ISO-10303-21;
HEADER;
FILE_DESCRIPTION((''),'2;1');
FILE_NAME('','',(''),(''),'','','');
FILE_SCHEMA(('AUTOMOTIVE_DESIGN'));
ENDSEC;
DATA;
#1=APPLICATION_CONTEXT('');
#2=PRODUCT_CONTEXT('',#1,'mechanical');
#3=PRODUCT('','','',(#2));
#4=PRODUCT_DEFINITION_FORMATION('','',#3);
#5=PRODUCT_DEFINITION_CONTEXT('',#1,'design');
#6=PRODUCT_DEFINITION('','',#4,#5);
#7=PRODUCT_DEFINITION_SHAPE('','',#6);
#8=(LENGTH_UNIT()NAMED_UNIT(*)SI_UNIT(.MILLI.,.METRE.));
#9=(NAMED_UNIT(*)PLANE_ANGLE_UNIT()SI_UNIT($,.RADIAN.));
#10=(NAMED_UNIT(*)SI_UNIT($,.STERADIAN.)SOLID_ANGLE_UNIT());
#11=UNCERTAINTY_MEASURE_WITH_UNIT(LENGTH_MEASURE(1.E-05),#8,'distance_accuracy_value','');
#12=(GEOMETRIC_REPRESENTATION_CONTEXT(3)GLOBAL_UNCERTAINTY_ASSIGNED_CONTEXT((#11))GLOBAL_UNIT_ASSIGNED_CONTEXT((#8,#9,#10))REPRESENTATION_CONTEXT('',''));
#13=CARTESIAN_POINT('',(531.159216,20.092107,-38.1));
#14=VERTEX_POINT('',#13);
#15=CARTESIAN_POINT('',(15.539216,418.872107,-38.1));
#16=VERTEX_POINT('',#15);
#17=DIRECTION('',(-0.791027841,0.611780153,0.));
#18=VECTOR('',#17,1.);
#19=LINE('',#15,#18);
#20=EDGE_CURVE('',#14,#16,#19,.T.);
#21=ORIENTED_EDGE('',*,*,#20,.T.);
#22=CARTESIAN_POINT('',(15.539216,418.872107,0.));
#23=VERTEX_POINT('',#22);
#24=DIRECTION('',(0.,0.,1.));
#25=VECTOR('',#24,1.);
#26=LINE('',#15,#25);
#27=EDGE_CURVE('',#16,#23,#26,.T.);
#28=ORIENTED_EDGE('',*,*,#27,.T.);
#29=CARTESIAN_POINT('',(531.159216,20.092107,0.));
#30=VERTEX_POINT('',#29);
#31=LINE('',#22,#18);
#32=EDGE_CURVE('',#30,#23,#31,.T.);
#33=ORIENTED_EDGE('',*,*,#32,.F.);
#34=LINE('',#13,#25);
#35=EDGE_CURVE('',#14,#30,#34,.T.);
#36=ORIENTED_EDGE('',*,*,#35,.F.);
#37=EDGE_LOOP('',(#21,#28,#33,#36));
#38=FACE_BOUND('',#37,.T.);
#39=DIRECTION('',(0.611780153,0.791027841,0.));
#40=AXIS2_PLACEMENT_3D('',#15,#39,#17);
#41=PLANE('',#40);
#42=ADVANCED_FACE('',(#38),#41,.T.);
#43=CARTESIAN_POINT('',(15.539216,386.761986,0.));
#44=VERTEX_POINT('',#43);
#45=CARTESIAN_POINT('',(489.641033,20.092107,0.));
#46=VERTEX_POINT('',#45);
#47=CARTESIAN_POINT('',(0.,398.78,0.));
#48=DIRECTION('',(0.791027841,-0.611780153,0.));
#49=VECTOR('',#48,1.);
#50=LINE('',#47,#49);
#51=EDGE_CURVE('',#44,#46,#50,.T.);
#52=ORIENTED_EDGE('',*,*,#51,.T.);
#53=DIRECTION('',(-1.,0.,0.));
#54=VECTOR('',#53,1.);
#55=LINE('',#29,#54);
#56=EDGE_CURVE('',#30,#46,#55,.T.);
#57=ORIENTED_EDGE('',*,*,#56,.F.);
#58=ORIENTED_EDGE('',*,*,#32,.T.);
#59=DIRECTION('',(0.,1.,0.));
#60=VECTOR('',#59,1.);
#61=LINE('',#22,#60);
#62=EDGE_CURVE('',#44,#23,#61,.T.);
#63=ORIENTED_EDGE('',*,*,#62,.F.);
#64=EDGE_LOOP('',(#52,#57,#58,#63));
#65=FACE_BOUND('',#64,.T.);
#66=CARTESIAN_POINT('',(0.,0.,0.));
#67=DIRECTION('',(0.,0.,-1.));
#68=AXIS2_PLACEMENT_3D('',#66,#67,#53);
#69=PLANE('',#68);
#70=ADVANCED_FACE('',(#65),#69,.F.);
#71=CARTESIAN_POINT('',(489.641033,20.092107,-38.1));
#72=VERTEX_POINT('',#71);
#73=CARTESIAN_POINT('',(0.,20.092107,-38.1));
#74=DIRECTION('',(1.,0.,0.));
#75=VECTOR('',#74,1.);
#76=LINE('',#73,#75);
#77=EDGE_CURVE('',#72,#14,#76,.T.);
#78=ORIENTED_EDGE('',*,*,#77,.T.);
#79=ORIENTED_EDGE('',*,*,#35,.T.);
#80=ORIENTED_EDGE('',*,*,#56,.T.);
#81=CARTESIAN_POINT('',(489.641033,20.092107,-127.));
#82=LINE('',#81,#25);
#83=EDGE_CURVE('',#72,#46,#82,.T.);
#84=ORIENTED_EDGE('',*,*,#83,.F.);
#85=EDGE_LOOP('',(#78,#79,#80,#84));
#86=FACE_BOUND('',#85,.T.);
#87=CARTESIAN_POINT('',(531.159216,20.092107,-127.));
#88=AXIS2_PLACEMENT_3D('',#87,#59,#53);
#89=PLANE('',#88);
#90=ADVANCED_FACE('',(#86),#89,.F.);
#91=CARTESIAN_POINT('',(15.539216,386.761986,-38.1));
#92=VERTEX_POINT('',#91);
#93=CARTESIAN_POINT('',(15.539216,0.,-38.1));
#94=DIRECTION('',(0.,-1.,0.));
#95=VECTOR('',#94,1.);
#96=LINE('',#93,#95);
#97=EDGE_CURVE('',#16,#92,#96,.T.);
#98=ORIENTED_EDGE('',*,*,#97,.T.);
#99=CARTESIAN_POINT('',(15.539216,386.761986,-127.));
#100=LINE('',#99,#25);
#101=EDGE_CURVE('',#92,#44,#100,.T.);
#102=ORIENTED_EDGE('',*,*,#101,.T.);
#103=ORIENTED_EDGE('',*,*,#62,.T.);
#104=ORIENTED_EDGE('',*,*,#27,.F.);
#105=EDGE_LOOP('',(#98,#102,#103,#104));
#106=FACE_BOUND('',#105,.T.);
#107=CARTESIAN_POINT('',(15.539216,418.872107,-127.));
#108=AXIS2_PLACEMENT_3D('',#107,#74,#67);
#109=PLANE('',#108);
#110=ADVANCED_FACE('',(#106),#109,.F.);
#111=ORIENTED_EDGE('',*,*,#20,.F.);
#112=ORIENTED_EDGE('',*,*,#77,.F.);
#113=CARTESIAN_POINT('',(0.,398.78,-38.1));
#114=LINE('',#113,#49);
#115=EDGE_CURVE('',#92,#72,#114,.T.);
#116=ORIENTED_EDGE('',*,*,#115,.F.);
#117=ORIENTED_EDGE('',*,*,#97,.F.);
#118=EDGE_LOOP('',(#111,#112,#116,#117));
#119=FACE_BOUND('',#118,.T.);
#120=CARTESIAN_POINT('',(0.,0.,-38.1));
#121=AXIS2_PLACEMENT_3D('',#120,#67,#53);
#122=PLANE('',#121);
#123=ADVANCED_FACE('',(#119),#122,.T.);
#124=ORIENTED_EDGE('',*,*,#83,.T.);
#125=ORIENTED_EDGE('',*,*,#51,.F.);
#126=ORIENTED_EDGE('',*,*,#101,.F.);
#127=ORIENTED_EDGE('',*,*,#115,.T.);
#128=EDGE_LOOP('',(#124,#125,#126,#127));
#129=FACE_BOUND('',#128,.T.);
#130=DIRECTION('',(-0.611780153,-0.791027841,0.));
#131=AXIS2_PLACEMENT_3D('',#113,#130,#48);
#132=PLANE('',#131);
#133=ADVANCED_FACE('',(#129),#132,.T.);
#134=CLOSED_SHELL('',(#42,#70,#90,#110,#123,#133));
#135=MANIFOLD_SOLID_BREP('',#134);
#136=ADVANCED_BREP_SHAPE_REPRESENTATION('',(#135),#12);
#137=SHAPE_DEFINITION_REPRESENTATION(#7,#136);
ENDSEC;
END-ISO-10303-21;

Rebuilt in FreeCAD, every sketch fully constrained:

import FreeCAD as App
import Part
import Sketcher

V = App.Vector
Q = App.Units.Quantity

doc = App.newDocument("Part")
body = doc.addObject("PartDesign::Body", "Body")

# Sketch on XY plane
sketch1 = body.newObject("Sketcher::SketchObject", "Sketch")
sketch1.AttachmentSupport = (doc.getObject("XY_Plane"), [""])
sketch1.MapMode = "FlatFace"
sketch1.addGeometry([
    Part.LineSegment(V(0, 398.78, 0), V(515.62, 0, 0)),
    Part.LineSegment(V(515.62, 0, 0), V(531.159216, 20.092107, 0)),
    Part.LineSegment(V(531.159216, 20.092107, 0), V(15.539216, 418.872107, 0)),
    Part.LineSegment(V(15.539216, 418.872107, 0), V(0, 398.78, 0)),
], False)
sketch1.addConstraint([
    Sketcher.Constraint("Coincident", 0, 2, 1, 1),
    Sketcher.Constraint("Coincident", 1, 2, 2, 1),
    Sketcher.Constraint("Coincident", 2, 2, 3, 1),
    Sketcher.Constraint("Coincident", 3, 2, 0, 1),
    Sketcher.Constraint("PointOnObject", 0, 2, -1),
    Sketcher.Constraint("PointOnObject", 3, 2, -2),
    Sketcher.Constraint("Perpendicular", 0, 1),
    Sketcher.Constraint("Perpendicular", 1, 2),
    Sketcher.Constraint("Perpendicular", 2, 3),
    Sketcher.Constraint("Distance", 1, Q("1 in")),
    Sketcher.Constraint("DistanceX", -1, 1, 0, 2, Q("20.3 in")),
    Sketcher.Constraint("DistanceY", -1, 1, 3, 2, Q("15.7 in")),
])
pad1 = body.newObject("PartDesign::Pad", "Pad")
pad1.Profile = sketch1
pad1.Length = Q("1.5 in")
pad1.Reversed = True

# Sketch on XY plane
sketch2 = body.newObject("Sketcher::SketchObject", "Sketch001")
sketch2.AttachmentSupport = (doc.getObject("XY_Plane"), [""])
sketch2.MapMode = "FlatFace"
sketch2.addGeometry([
    Part.LineSegment(V(15.539216, 386.761986, 0), V(15.539216, 418.872107, 0)),
    Part.LineSegment(V(15.539216, 418.872107, 0), V(0, 398.78, 0)),
    Part.LineSegment(V(0, 398.78, 0), V(15.539216, 386.761986, 0)),
], False)
sketch2.addConstraint([
    Sketcher.Constraint("Coincident", 0, 2, 1, 1),
    Sketcher.Constraint("Coincident", 1, 2, 2, 1),
    Sketcher.Constraint("Coincident", 2, 2, 0, 1),
    Sketcher.Constraint("Vertical", 0),
    Sketcher.Constraint("PointOnObject", 1, 2, -2),
    Sketcher.Constraint("Perpendicular", 1, 2),
    Sketcher.Constraint("Distance", 1, Q("1 in")),
    Sketcher.Constraint("DistanceY", -1, 1, 1, 2, Q("15.7 in")),
    Sketcher.Constraint("DistanceY", 0, 1, 0, 2, Q("32.110121 mm")),
])
pocket1 = body.newObject("PartDesign::Pocket", "Pocket")
pocket1.Profile = sketch2
pocket1.Length = Q("5 in")

# Sketch on XY plane
sketch3 = body.newObject("Sketcher::SketchObject", "Sketch002")
sketch3.AttachmentSupport = (doc.getObject("XY_Plane"), [""])
sketch3.MapMode = "FlatFace"
sketch3.addGeometry([
    Part.LineSegment(V(531.159216, 20.092107, 0), V(489.641033, 20.092107, 0)),
    Part.LineSegment(V(489.641033, 20.092107, 0), V(515.62, 0, 0)),
    Part.LineSegment(V(515.62, 0, 0), V(531.159216, 20.092107, 0)),
], False)
sketch3.addConstraint([
    Sketcher.Constraint("Coincident", 0, 2, 1, 1),
    Sketcher.Constraint("Coincident", 1, 2, 2, 1),
    Sketcher.Constraint("Coincident", 2, 2, 0, 1),
    Sketcher.Constraint("Horizontal", 0),
    Sketcher.Constraint("PointOnObject", 1, 2, -1),
    Sketcher.Constraint("Perpendicular", 1, 2),
    Sketcher.Constraint("Distance", 2, Q("1 in")),
    Sketcher.Constraint("DistanceX", -1, 1, 1, 2, Q("20.3 in")),
    Sketcher.Constraint("Distance", 1, Q("32.842038 mm")),
])
pocket2 = body.newObject("PartDesign::Pocket", "Pocket001")
pocket2.Profile = sketch3
pocket2.Length = Q("5 in")

doc.recompute()
